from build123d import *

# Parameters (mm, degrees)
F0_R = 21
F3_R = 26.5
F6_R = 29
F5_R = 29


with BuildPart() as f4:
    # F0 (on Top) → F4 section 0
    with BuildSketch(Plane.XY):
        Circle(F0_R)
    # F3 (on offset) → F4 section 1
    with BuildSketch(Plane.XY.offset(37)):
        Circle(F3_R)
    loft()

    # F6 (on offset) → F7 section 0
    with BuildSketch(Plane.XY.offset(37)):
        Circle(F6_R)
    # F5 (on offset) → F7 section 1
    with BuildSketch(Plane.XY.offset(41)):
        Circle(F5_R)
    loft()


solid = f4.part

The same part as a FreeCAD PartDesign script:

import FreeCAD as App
import Part
import Sketcher

doc = App.newDocument("Part")
body = doc.addObject("PartDesign::Body", "Body")

# Sketch on XY plane
sketch1 = doc.addObject("Sketcher::SketchObject", "Sketch")
body.addObject(sketch1)
sketch1.AttachmentSupport = (doc.XY_Plane, [""])
sketch1.MapMode = "FlatFace"
sketch1.addGeometry(Part.Circle(App.Vector(0, 0, 0), App.Vector(0, 0, 1), 21), False)
sketch1.addConstraint(Sketcher.Constraint("Coincident", 0, 3, -1, 1))
sketch1.addConstraint(Sketcher.Constraint("Diameter", 0, 42.0))

# Sketch on XY plane
sketch2 = doc.addObject("Sketcher::SketchObject", "Sketch001")
body.addObject(sketch2)
sketch2.AttachmentSupport = (doc.XY_Plane, [""])
sketch2.MapMode = "FlatFace"
sketch2.AttachmentOffset = App.Placement(App.Vector(0, 0, 37), App.Rotation())
sketch2.addGeometry(Part.Circle(App.Vector(0, 0, 0), App.Vector(0, 0, 1), 26.5), False)
sketch2.addConstraint(Sketcher.Constraint("Coincident", 0, 3, -1, 1))
sketch2.addConstraint(Sketcher.Constraint("Diameter", 0, 53.0))

additiveloft = doc.addObject("PartDesign::AdditiveLoft", "AdditiveLoft")
body.addObject(additiveloft)
additiveloft.Profile = sketch1
additiveloft.Sections = [sketch2]

# Sketch on XY plane
sketch3 = doc.addObject("Sketcher::SketchObject", "Sketch002")
body.addObject(sketch3)
sketch3.AttachmentSupport = (doc.XY_Plane, [""])
sketch3.MapMode = "FlatFace"
sketch3.AttachmentOffset = App.Placement(App.Vector(0, 0, 37), App.Rotation())
sketch3.addGeometry(Part.Circle(App.Vector(0, 0, 0), App.Vector(0, 0, 1), 29), False)
sketch3.addConstraint(Sketcher.Constraint("Coincident", 0, 3, -1, 1))
sketch3.addConstraint(Sketcher.Constraint("Diameter", 0, 58.0))

# Sketch on XY plane
sketch4 = doc.addObject("Sketcher::SketchObject", "Sketch003")
body.addObject(sketch4)
sketch4.AttachmentSupport = (doc.XY_Plane, [""])
sketch4.MapMode = "FlatFace"
sketch4.AttachmentOffset = App.Placement(App.Vector(0, 0, 41), App.Rotation())
sketch4.addGeometry(Part.Circle(App.Vector(0, 0, 0), App.Vector(0, 0, 1), 29), False)
sketch4.addConstraint(Sketcher.Constraint("Coincident", 0, 3, -1, 1))
sketch4.addConstraint(Sketcher.Constraint("Diameter", 0, 58.0))

additiveloft2 = doc.addObject("PartDesign::AdditiveLoft", "AdditiveLoft001")
body.addObject(additiveloft2)
additiveloft2.Profile = sketch3
additiveloft2.Sections = [sketch4]

doc.recompute()
